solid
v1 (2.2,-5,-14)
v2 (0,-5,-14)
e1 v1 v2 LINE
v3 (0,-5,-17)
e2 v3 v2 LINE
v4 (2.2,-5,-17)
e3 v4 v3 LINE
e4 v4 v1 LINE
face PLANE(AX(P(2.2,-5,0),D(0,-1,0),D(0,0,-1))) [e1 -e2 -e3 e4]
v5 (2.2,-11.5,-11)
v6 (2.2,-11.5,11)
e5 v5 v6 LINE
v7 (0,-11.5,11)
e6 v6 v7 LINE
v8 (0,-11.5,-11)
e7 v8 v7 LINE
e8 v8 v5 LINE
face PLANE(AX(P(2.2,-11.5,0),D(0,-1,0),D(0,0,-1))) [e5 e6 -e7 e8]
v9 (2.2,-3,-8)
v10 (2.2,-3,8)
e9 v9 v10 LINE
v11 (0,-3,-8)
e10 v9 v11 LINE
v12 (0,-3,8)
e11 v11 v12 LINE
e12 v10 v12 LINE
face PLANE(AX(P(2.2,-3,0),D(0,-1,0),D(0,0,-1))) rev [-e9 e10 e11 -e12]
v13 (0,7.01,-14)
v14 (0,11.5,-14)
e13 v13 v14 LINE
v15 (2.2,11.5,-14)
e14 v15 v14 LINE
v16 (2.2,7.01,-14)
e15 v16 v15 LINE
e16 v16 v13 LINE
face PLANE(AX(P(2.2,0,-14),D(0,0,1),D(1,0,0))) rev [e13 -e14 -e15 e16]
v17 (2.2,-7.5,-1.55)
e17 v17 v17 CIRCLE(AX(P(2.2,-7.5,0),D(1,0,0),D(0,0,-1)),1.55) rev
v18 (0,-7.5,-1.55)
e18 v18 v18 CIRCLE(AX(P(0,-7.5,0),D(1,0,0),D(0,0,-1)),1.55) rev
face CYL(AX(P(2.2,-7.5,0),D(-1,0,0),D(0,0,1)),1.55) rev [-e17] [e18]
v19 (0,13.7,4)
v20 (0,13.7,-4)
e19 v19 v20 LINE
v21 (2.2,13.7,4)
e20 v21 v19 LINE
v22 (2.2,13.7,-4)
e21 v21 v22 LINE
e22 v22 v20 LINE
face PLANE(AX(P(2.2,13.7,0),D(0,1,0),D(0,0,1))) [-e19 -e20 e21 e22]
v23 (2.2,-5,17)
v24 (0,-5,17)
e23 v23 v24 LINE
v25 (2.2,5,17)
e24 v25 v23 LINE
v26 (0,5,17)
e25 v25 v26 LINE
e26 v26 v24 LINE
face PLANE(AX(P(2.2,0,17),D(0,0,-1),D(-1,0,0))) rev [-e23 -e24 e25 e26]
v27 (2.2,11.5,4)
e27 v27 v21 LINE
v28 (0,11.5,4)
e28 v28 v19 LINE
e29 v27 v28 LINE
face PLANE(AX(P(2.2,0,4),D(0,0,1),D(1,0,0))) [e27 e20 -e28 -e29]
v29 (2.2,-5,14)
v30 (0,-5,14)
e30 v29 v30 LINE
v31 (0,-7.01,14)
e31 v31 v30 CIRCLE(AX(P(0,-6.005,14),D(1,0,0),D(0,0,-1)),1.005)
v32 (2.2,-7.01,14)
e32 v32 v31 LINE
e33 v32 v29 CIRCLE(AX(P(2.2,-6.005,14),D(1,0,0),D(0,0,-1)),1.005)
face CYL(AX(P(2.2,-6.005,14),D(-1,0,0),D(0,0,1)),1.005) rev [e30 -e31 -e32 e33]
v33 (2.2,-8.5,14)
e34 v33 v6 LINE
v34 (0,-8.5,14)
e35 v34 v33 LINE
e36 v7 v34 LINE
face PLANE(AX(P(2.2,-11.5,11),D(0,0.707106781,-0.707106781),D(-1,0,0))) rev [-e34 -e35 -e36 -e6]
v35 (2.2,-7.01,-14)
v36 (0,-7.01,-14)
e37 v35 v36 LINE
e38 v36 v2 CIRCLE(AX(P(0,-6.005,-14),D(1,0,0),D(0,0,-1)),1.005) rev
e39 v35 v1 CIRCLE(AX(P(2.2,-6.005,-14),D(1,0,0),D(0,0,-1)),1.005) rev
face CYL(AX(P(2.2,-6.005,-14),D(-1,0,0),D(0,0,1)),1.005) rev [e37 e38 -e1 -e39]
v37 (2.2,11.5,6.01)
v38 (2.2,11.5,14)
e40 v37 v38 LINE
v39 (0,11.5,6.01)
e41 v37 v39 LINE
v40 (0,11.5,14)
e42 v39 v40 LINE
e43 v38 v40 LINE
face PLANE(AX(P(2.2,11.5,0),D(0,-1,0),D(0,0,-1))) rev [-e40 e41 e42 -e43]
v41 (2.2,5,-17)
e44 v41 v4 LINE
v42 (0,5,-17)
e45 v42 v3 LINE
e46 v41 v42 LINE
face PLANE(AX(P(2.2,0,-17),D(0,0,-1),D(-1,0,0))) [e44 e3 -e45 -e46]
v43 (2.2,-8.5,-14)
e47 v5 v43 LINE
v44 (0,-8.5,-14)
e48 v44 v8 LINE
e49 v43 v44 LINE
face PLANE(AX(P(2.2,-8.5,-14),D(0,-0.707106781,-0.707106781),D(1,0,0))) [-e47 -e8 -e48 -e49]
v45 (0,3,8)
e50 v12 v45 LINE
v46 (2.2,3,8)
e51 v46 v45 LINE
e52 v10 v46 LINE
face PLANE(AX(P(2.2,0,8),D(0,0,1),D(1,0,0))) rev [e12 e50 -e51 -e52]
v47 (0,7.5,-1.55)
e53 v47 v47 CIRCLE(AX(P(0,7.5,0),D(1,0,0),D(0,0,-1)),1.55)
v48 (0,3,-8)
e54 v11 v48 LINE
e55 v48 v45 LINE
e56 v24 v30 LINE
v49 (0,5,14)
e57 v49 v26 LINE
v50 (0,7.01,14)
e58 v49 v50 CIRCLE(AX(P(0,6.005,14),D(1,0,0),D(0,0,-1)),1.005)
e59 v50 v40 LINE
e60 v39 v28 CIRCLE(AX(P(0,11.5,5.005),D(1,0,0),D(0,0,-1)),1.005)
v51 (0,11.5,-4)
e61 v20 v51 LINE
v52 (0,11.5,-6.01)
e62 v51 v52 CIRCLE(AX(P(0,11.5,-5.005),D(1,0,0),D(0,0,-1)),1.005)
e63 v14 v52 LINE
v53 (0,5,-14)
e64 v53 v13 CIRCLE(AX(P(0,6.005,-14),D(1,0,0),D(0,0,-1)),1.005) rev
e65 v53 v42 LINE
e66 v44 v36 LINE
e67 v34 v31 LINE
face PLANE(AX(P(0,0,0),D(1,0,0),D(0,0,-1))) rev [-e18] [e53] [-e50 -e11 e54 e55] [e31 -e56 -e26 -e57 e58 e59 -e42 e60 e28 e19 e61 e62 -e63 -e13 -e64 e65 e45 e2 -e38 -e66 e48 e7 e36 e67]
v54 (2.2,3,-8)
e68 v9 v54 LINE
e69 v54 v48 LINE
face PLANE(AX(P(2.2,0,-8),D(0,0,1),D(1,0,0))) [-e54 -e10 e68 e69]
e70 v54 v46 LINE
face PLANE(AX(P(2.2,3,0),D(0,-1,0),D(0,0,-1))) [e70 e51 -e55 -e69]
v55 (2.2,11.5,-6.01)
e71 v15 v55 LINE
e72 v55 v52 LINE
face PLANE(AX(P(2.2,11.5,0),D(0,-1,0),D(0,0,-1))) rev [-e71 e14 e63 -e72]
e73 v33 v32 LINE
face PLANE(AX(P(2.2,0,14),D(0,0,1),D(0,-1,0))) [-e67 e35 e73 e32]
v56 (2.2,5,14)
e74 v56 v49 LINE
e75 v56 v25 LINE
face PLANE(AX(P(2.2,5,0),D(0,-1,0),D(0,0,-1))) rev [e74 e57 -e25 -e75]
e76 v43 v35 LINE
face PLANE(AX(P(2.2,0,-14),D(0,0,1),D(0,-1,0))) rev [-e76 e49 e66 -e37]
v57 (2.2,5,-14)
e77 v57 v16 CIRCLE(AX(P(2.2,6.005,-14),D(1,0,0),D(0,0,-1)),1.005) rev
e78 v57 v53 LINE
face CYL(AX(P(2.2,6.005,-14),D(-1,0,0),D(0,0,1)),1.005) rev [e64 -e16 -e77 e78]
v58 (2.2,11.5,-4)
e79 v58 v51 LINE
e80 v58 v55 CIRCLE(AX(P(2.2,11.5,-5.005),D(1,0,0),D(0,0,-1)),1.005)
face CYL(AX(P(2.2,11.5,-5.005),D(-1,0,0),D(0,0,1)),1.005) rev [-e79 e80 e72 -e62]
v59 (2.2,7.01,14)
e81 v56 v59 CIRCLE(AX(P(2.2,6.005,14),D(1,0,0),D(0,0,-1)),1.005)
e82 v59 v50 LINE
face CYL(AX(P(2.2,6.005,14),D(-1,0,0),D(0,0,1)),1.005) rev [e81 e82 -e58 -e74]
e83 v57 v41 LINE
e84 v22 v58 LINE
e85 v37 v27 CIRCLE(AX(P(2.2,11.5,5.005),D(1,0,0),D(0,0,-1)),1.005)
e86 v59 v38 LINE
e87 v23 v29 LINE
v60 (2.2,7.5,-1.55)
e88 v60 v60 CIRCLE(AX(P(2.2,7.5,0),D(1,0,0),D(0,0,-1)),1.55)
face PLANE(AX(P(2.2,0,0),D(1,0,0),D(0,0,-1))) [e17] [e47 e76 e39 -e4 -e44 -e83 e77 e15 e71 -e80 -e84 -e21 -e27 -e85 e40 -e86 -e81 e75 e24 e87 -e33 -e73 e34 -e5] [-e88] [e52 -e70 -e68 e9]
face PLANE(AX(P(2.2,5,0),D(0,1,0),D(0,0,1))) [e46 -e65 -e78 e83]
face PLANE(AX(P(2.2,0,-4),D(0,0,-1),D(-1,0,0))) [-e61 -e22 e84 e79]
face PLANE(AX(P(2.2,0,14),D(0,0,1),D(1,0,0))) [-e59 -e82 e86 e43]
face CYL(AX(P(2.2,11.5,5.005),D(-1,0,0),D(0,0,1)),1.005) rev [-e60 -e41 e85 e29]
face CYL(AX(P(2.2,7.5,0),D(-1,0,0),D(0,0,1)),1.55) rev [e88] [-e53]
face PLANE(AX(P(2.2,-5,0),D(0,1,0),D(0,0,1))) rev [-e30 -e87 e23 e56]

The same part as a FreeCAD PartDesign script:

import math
import FreeCAD as App
import Part
import Sketcher

V = App.Vector


def edges_at(feature, points):
    """Names of the edges that pass closest to the given points."""
    edges = feature.Shape.Edges
    near = lambda p: min(range(len(edges)), key=lambda i: edges[i].distToShape(Part.Vertex(*p))[0])
    return sorted({f"Edge{near(p) + 1}" for p in points})

doc = App.newDocument("Part")
body = doc.addObject("PartDesign::Body", "Body")

sketch1 = body.newObject("Sketcher::SketchObject", "Sketch")
sketch1.AttachmentSupport = (doc.getObject("YZ_Plane"), [""])
sketch1.MapMode = "FlatFace"
sketch1.addGeometry([
    Part.LineSegment(V(-11.5, 14, 0), V(-11.5, -14, 0)),
    Part.LineSegment(V(-11.5, -14, 0), V(-7, -14, 0)),
    Part.ArcOfCircle(Part.Circle(V(-6, -14, 0), V(0, 0, 1), 1), math.radians(0), math.radians(180)),
    Part.LineSegment(V(-5, -14, 0), V(-5, -17, 0)),
    Part.LineSegment(V(-5, -17, 0), V(5, -17, 0)),
    Part.LineSegment(V(5, -17, 0), V(5, -14, 0)),
    Part.ArcOfCircle(Part.Circle(V(6, -14, 0), V(0, 0, 1), 1), math.radians(0), math.radians(180)),
    Part.LineSegment(V(7, -14, 0), V(11.5, -14, 0)),
    Part.LineSegment(V(11.5, -14, 0), V(11.5, -6, 0)),
    Part.ArcOfCircle(Part.Circle(V(11.5, -5, 0), V(0, 0, 1), 1), math.radians(90), math.radians(270)),
    Part.LineSegment(V(11.5, -4, 0), V(13.7, -4, 0)),
    Part.LineSegment(V(13.7, -4, 0), V(13.7, 4, 0)),
    Part.LineSegment(V(13.7, 4, 0), V(11.5, 4, 0)),
    Part.ArcOfCircle(Part.Circle(V(11.5, 5, 0), V(0, 0, 1), 1), math.radians(90), math.radians(270)),
    Part.LineSegment(V(11.5, 6, 0), V(11.5, 14, 0)),
    Part.LineSegment(V(11.5, 14, 0), V(7, 14, 0)),
    Part.ArcOfCircle(Part.Circle(V(6, 14, 0), V(0, 0, 1), 1), math.radians(-90), math.radians(0)),
    Part.ArcOfCircle(Part.Circle(V(6, 14, 0), V(0, 0, 1), 1), math.radians(180), math.radians(270)),
    Part.LineSegment(V(5, 14, 0), V(5, 17, 0)),
    Part.LineSegment(V(5, 17, 0), V(-5, 17, 0)),
    Part.LineSegment(V(-5, 17, 0), V(-5, 14, 0)),
    Part.ArcOfCircle(Part.Circle(V(-6, 14, 0), V(0, 0, 1), 1), math.radians(-90), math.radians(0)),
    Part.ArcOfCircle(Part.Circle(V(-6, 14, 0), V(0, 0, 1), 1), math.radians(180), math.radians(270)),
    Part.LineSegment(V(-7, 14, 0), V(-11.5, 14, 0)),
    Part.Circle(V(-7.5, 0, 0), V(0, 0, 1), 1.6),
    Part.LineSegment(V(-3, -8, 0), V(-3, 8, 0)),
    Part.LineSegment(V(-3, 8, 0), V(3, 8, 0)),
    Part.LineSegment(V(3, 8, 0), V(3, -8, 0)),
    Part.LineSegment(V(3, -8, 0), V(-3, -8, 0)),
    Part.Circle(V(7.5, 0, 0), V(0, 0, 1), 1.6),
], False)
sketch1.addConstraint([
    Sketcher.Constraint("Coincident", 0, 2, 1, 1),
    Sketcher.Constraint("Coincident", 1, 2, 2, 2),
    Sketcher.Constraint("Tangent", 2, 1, 3, 1),
    Sketcher.Constraint("Coincident", 3, 2, 4, 1),
    Sketcher.Constraint("Coincident", 4, 2, 5, 1),
    Sketcher.Constraint("Tangent", 5, 2, 6, 2),
    Sketcher.Constraint("Coincident", 6, 1, 7, 1),
    Sketcher.Constraint("Coincident", 7, 2, 8, 1),
    Sketcher.Constraint("Coincident", 8, 2, 9, 2),
    Sketcher.Constraint("Tangent", 9, 1, 10, 1),
    Sketcher.Constraint("Coincident", 10, 2, 11, 1),
    Sketcher.Constraint("Coincident", 11, 2, 12, 1),
    Sketcher.Constraint("Tangent", 12, 2, 13, 2),
    Sketcher.Constraint("Coincident", 13, 1, 14, 1),
    Sketcher.Constraint("Coincident", 14, 2, 15, 1),
    Sketcher.Constraint("Coincident", 15, 2, 16, 2),
    Sketcher.Constraint("Tangent", 16, 1, 17, 2),
    Sketcher.Constraint("Tangent", 17, 1, 18, 1),
    Sketcher.Constraint("Coincident", 18, 2, 19, 1),
    Sketcher.Constraint("Coincident", 19, 2, 20, 1),
    Sketcher.Constraint("Tangent", 20, 2, 21, 2),
    Sketcher.Constraint("Tangent", 21, 1, 22, 2),
    Sketcher.Constraint("Coincident", 22, 1, 23, 1),
    Sketcher.Constraint("Coincident", 23, 2, 0, 1),
    Sketcher.Constraint("Coincident", 25, 2, 26, 1),
    Sketcher.Constraint("Coincident", 26, 2, 27, 1),
    Sketcher.Constraint("Coincident", 27, 2, 28, 1),
    Sketcher.Constraint("Coincident", 28, 2, 25, 1),
    Sketcher.Constraint("Vertical", 0),
    Sketcher.Constraint("Horizontal", 1),
    Sketcher.Constraint("Vertical", 3),
    Sketcher.Constraint("Horizontal", 4),
    Sketcher.Constraint("Vertical", 5),
    Sketcher.Constraint("Horizontal", 7),
    Sketcher.Constraint("Vertical", 8),
    Sketcher.Constraint("Horizontal", 10),
    Sketcher.Constraint("Vertical", 11),
    Sketcher.Constraint("Horizontal", 12),
    Sketcher.Constraint("Vertical", 14),
    Sketcher.Constraint("Horizontal", 15),
    Sketcher.Constraint("Vertical", 18),
    Sketcher.Constraint("Horizontal", 19),
    Sketcher.Constraint("Vertical", 20),
    Sketcher.Constraint("Horizontal", 23),
    Sketcher.Constraint("Vertical", 25),
    Sketcher.Constraint("Horizontal", 26),
    Sketcher.Constraint("Vertical", 27),
    Sketcher.Constraint("Horizontal", 28),
    Sketcher.Constraint("Equal", 2, 6),
    Sketcher.Constraint("Equal", 6, 9),
    Sketcher.Constraint("Equal", 9, 13),
    Sketcher.Constraint("Equal", 13, 16),
    Sketcher.Constraint("Equal", 16, 17),
    Sketcher.Constraint("Equal", 17, 21),
    Sketcher.Constraint("Equal", 21, 22),
    Sketcher.Constraint("Equal", 24, 29),
    Sketcher.Constraint("Symmetric", 2, 3, 16, 3, -1, 1),
    Sketcher.Constraint("Symmetric", 6, 3, 21, 3, -1, 1),
    Sketcher.Constraint("Symmetric", 24, 3, 29, 3, -1, 1),
    Sketcher.Constraint("Symmetric", 0, 2, 14, 2, -1, 1),
    Sketcher.Constraint("Symmetric", 7, 2, 23, 2, -1, 1),
    Sketcher.Constraint("Symmetric", 25, 2, 27, 2, -1, 1),
    Sketcher.Constraint("Symmetric", 2, 3, 6, 3, -2),
    Sketcher.Constraint("Symmetric", 9, 3, 13, 3, -1),
    Sketcher.Constraint("PointOnObject", 24, 3, -1),
    Sketcher.Constraint("Horizontal", 6, 3, 0, 2),
    Sketcher.Constraint("Horizontal", 5, 2, 6, 1),
    Sketcher.Constraint("Vertical", 13, 3, 7, 2),
    Sketcher.Constraint("Vertical", 17, 3, 16, 1),
    Sketcher.Constraint("Vertical", 22, 3, 21, 1),
    Sketcher.Constraint("Equal", 5, 18),
    Sketcher.Constraint("Diameter", 24, 3.1),
    Sketcher.Constraint("DistanceX", 4, 1, 4, 2, 10.0),
    Sketcher.Constraint("DistanceX", 26, 1, 26, 2, 6.0),
    Sketcher.Constraint("DistanceY", 0, 2, 0, 1, 28.0),
    Sketcher.Constraint("DistanceY", 3, 2, 3, 1, 3.0),
    Sketcher.Constraint("DistanceY", 11, 1, 11, 2, 8.0),
    Sketcher.Constraint("DistanceY", 25, 1, 25, 2, 16.0),
    Sketcher.Constraint("DistanceX", 10, 1, 10, 2, 2.2),
    Sketcher.Constraint("Radius", 2, 1.005),
    Sketcher.Constraint("DistanceX", 29, 3, 9, 3, 4.0),
    Sketcher.Constraint("DistanceX", 0, 2, 29, 3, 19.0),
])
pad1 = body.newObject("PartDesign::Pad", "Pad")
pad1.Profile = sketch1
pad1.Length = 2.2
doc.recompute()

chamfer = body.newObject("PartDesign::Chamfer", "Chamfer")
chamfer.Base = (pad1, edges_at(pad1, [(1.1, -11.5, -14), (1.1, -11.5, 14)]))
chamfer.Size = 3

doc.recompute()
